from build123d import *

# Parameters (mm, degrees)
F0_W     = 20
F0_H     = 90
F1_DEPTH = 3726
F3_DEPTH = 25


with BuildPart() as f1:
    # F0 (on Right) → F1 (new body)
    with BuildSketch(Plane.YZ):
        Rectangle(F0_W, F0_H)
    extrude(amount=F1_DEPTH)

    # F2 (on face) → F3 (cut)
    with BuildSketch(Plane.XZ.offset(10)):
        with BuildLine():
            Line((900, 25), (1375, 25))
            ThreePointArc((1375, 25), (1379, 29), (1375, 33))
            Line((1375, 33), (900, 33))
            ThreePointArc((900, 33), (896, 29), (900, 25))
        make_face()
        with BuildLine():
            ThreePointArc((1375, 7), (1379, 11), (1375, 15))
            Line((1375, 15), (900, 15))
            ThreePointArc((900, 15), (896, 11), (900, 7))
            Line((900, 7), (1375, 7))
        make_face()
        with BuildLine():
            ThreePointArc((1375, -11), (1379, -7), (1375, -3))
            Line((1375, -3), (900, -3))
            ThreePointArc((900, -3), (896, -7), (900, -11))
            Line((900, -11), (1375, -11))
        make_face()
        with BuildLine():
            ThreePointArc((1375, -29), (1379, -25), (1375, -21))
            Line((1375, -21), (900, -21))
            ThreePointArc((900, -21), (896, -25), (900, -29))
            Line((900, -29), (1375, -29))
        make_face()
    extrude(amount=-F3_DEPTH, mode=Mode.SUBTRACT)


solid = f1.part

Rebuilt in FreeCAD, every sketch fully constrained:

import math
import FreeCAD as App
import Part
import Sketcher
from FreeCAD import Vector


def add_polygon(sketch, points):
    """Adds a closed chain of lines whose ends are joined by coincident constraints."""
    first, n = sketch.GeometryCount, len(points)
    for a, b in zip(points, points[1:] + points[:1]):
        sketch.addGeometry(Part.LineSegment(App.Vector(*a, 0), App.Vector(*b, 0)), False)
    for i in range(n):
        sketch.addConstraint(Sketcher.Constraint("Coincident", first + i, 2, first + (i + 1) % n, 1))

doc = App.newDocument("Part")
params = doc.addObject("Spreadsheet::Sheet", "Params")
for row, (alias, value) in enumerate([
    ("sketch1_width", "20 mm"),
    ("sketch1_height", "90 mm"),
    ("pad1_length", "3726 mm"),
    ("sketch2_radius", "4 mm"),
    ("sketch2_width", "475 mm"),
    ("pocket1_length", "25 mm"),
], start=1):
    params.set(f"A{row}", alias)
    params.set(f"B{row}", "=" + value)
    params.setAlias(f"B{row}", alias)

body = doc.addObject("PartDesign::Body", "Body")

# Sketch on YZ plane
sketch1 = body.newObject("Sketcher::SketchObject", "Sketch")
sketch1.AttachmentSupport = (doc.getObject("YZ_Plane"), [""])
sketch1.MapMode = "FlatFace"
add_polygon(sketch1, [(-10, 45), (-10, -45), (10, -45), (10, 45)])  # lines 0-3
sketch1.addConstraint([
    Sketcher.Constraint("Vertical", 0),
    Sketcher.Constraint("Horizontal", 1),
    Sketcher.Constraint("Vertical", 2),
    Sketcher.Constraint("Horizontal", 3),
    Sketcher.Constraint("Symmetric", 0, 2, 2, 2, -1, 1),
    Sketcher.Constraint("DistanceX", 1, 1, 1, 2, 20.0),
    Sketcher.Constraint("DistanceY", 0, 2, 0, 1, 90.0),
])
sketch1.setExpression("Constraints[9]", "Params.sketch1_width")
sketch1.setExpression("Constraints[10]", "Params.sketch1_height")
pad1 = body.newObject("PartDesign::Pad", "Pad")
pad1.Profile = sketch1
pad1.setExpression("Length", "Params.pad1_length")

# Sketch on XZ plane
sketch2 = body.newObject("Sketcher::SketchObject", "Sketch001")
sketch2.AttachmentSupport = (doc.getObject("XZ_Plane"), [""])
sketch2.MapMode = "FlatFace"
sketch2.AttachmentOffset = App.Placement(Vector(0, 0, 10), App.Rotation())
sketch2.addGeometry([
    Part.LineSegment(Vector(900, 25, 0), Vector(1375, 25, 0)),  # 0
    Part.ArcOfCircle(Part.Circle(Vector(1375, 29, 0), Vector(0, 0, 1), 4), math.radians(-90), math.radians(90)),  # 1
    Part.LineSegment(Vector(1375, 33, 0), Vector(900, 33, 0)),  # 2
    Part.ArcOfCircle(Part.Circle(Vector(900, 29, 0), Vector(0, 0, 1), 4), math.radians(90), math.radians(270)),  # 3
    Part.ArcOfCircle(Part.Circle(Vector(1375, 11, 0), Vector(0, 0, 1), 4), math.radians(-90), math.radians(90)),  # 4
    Part.LineSegment(Vector(1375, 15, 0), Vector(900, 15, 0)),  # 5
    Part.ArcOfCircle(Part.Circle(Vector(900, 11, 0), Vector(0, 0, 1), 4), math.radians(90), math.radians(270)),  # 6
    Part.LineSegment(Vector(900, 7, 0), Vector(1375, 7, 0)),  # 7
    Part.ArcOfCircle(Part.Circle(Vector(1375, -7, 0), Vector(0, 0, 1), 4), math.radians(-90), math.radians(90)),  # 8
    Part.LineSegment(Vector(1375, -3, 0), Vector(900, -3, 0)),  # 9
    Part.ArcOfCircle(Part.Circle(Vector(900, -7, 0), Vector(0, 0, 1), 4), math.radians(90), math.radians(270)),  # 10
    Part.LineSegment(Vector(900, -11, 0), Vector(1375, -11, 0)),  # 11
    Part.ArcOfCircle(Part.Circle(Vector(1375, -25, 0), Vector(0, 0, 1), 4), math.radians(-90), math.radians(90)),  # 12
    Part.LineSegment(Vector(1375, -21, 0), Vector(900, -21, 0)),  # 13
    Part.ArcOfCircle(Part.Circle(Vector(900, -25, 0), Vector(0, 0, 1), 4), math.radians(90), math.radians(270)),  # 14
    Part.LineSegment(Vector(900, -29, 0), Vector(1375, -29, 0)),  # 15
], False)
sketch2.addConstraint([
    Sketcher.Constraint("Tangent", 0, 2, 1, 1),
    Sketcher.Constraint("Tangent", 1, 2, 2, 1),
    Sketcher.Constraint("Tangent", 2, 2, 3, 1),
    Sketcher.Constraint("Tangent", 3, 2, 0, 1),
    Sketcher.Constraint("Tangent", 4, 2, 5, 1),
    Sketcher.Constraint("Tangent", 5, 2, 6, 1),
    Sketcher.Constraint("Tangent", 6, 2, 7, 1),
    Sketcher.Constraint("Tangent", 7, 2, 4, 1),
    Sketcher.Constraint("Tangent", 8, 2, 9, 1),
    Sketcher.Constraint("Tangent", 9, 2, 10, 1),
    Sketcher.Constraint("Tangent", 10, 2, 11, 1),
    Sketcher.Constraint("Tangent", 11, 2, 8, 1),
    Sketcher.Constraint("Tangent", 12, 2, 13, 1),
    Sketcher.Constraint("Tangent", 13, 2, 14, 1),
    Sketcher.Constraint("Tangent", 14, 2, 15, 1),
    Sketcher.Constraint("Tangent", 15, 2, 12, 1),
    Sketcher.Constraint("Horizontal", 0),
    Sketcher.Constraint("Horizontal", 2),
    Sketcher.Constraint("Horizontal", 5),
    Sketcher.Constraint("Horizontal", 7),
    Sketcher.Constraint("Horizontal", 9),
    Sketcher.Constraint("Horizontal", 11),
    Sketcher.Constraint("Horizontal", 13),
    Sketcher.Constraint("Horizontal", 15),
    Sketcher.Constraint("Equal", 3, 4),
    Sketcher.Constraint("Equal", 6, 8),
    Sketcher.Constraint("Equal", 10, 12),
    Sketcher.Constraint("Vertical", 1, 3, 4, 3),
    Sketcher.Constraint("Vertical", 3, 3, 6, 3),
    Sketcher.Constraint("Vertical", 4, 3, 8, 3),
    Sketcher.Constraint("Vertical", 6, 3, 10, 3),
    Sketcher.Constraint("Vertical", 8, 3, 12, 3),
    Sketcher.Constraint("Vertical", 10, 3, 14, 3),
    Sketcher.Constraint("Radius", 1, 4.0),
    Sketcher.Constraint("DistanceX", 0, 1, 0, 2, 475.0),
    Sketcher.Constraint("DistanceX", -1, 1, 1, 3, 1375.0),
    Sketcher.Constraint("DistanceY", -1, 1, 1, 3, 29.0),
    Sketcher.Constraint("DistanceY", -1, 1, 4, 3, 11.0),
    Sketcher.Constraint("DistanceY", 8, 3, -1, 1, 7.0),
    Sketcher.Constraint("DistanceY", 12, 3, -1, 1, 25.0),
])
sketch2.setExpression("Constraints[33]", "Params.sketch2_radius")
sketch2.setExpression("Constraints[34]", "Params.sketch2_width")
pocket1 = body.newObject("PartDesign::Pocket", "Pocket")
pocket1.Profile = sketch2
pocket1.setExpression("Length", "Params.pocket1_length")

doc.recompute()
